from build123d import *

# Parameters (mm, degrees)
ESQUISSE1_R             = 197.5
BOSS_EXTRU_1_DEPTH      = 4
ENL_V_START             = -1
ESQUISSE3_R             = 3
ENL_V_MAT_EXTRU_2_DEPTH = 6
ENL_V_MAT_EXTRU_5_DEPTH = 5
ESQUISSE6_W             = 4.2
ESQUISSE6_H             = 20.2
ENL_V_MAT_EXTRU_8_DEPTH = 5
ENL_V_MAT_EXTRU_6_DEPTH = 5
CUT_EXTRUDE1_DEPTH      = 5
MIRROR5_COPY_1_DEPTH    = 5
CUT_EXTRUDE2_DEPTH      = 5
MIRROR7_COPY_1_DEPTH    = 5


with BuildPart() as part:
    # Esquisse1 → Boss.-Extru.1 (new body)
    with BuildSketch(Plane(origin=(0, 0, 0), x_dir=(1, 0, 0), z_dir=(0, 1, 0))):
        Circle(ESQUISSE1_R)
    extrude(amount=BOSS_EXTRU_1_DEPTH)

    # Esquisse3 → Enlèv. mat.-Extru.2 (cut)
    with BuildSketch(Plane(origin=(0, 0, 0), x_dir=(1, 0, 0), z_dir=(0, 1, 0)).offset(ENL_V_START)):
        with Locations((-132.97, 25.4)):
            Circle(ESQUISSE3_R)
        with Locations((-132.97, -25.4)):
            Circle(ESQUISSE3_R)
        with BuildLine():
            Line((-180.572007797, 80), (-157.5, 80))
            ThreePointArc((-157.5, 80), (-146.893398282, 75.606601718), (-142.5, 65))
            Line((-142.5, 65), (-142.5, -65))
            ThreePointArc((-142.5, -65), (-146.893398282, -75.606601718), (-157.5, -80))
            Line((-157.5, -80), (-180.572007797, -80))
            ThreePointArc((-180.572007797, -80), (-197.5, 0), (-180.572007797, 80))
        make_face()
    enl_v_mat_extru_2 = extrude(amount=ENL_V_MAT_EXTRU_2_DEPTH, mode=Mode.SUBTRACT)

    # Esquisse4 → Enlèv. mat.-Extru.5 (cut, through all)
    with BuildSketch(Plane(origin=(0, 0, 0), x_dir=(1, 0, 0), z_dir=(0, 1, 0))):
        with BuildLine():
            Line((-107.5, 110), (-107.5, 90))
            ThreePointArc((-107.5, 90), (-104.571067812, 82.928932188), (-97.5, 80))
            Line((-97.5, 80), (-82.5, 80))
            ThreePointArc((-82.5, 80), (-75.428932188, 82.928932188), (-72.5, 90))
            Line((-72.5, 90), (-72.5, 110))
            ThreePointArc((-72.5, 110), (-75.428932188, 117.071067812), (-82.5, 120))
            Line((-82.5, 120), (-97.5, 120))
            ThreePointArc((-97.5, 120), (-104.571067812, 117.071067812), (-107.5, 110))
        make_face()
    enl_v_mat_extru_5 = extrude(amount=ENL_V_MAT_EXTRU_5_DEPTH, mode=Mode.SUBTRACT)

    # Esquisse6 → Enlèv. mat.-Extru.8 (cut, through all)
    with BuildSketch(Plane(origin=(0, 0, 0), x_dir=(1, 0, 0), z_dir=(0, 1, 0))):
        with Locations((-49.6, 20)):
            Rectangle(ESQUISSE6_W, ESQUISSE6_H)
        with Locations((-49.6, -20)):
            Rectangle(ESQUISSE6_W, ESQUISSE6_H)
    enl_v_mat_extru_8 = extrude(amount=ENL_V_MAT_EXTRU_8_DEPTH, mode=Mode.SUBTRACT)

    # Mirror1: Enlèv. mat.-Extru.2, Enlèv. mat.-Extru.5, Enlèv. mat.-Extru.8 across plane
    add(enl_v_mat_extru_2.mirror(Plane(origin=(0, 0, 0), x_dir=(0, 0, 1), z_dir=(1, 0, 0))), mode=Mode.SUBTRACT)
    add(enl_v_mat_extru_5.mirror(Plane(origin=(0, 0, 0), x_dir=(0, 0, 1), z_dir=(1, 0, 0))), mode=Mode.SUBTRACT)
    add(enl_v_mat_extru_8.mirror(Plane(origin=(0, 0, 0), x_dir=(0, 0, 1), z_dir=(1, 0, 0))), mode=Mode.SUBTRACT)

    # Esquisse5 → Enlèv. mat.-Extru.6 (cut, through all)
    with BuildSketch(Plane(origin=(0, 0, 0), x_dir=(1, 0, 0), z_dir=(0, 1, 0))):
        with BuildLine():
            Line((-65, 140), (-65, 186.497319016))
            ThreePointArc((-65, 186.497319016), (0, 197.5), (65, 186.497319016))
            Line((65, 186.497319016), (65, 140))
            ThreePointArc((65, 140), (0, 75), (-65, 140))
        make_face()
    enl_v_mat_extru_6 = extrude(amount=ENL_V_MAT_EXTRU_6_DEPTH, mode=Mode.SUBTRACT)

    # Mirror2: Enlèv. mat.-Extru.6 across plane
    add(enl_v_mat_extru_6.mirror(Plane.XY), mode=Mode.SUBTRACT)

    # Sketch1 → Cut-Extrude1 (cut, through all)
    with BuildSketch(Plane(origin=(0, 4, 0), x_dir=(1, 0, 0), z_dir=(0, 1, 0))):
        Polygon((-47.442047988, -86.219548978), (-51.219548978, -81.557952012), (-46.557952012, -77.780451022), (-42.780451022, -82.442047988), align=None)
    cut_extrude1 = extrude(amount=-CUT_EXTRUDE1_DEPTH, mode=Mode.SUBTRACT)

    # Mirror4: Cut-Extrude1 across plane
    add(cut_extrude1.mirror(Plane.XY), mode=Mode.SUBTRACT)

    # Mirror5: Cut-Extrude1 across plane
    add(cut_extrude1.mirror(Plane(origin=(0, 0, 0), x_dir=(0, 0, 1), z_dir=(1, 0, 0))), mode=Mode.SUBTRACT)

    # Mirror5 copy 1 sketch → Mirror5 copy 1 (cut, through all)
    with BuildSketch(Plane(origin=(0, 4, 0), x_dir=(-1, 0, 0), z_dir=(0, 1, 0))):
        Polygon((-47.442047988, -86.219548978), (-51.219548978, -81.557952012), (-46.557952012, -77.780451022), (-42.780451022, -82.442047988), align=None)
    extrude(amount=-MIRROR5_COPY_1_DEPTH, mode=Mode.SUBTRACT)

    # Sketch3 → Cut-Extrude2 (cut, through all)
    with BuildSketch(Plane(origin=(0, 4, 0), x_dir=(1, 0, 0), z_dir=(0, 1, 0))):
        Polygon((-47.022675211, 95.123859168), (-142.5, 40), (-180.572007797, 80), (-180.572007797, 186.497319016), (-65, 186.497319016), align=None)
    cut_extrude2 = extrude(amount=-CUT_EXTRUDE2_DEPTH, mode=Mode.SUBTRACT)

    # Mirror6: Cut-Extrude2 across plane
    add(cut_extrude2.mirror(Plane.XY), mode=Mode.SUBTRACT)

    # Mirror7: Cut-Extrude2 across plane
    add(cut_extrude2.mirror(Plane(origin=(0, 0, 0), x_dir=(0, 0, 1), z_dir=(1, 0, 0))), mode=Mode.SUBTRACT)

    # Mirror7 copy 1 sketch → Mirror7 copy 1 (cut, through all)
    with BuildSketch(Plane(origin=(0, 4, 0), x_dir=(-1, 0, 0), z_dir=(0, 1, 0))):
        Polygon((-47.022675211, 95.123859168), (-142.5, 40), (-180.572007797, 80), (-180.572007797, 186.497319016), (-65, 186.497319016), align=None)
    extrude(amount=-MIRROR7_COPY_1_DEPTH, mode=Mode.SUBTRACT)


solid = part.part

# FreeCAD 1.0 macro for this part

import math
import FreeCAD as App
import Part
import Sketcher

V = App.Vector
Q = App.Units.Quantity

doc = App.newDocument("Part")
body = doc.addObject("PartDesign::Body", "Body")

# Sketch on XZ plane
sketch1 = body.newObject("Sketcher::SketchObject", "Sketch")
sketch1.AttachmentSupport = (doc.getObject("XZ_Plane"), [""])
sketch1.MapMode = "FlatFace"
sketch1.addGeometry(Part.Circle(V(0, 0, 0), V(0, 0, 1), 197.5), False)
sketch1.addConstraint([
    Sketcher.Constraint("Coincident", 0, 3, -1, 1),
    Sketcher.Constraint("Diameter", 0, 395.0),
])
pad1 = body.newObject("PartDesign::Pad", "Pad")
pad1.Profile = sketch1
pad1.Length = 4
pad1.Reversed = True

# Sketch on XZ plane
sketch2 = body.newObject("Sketcher::SketchObject", "Sketch001")
sketch2.AttachmentSupport = (doc.getObject("XZ_Plane"), [""])
sketch2.MapMode = "FlatFace"
sketch2.AttachmentOffset = App.Placement(V(0, 0, 1), App.Rotation())
sketch2.addGeometry([
    Part.Circle(V(-132.97, -25.4, 0), V(0, 0, 1), 3),  # 0
    Part.Circle(V(-132.97, 25.4, 0), V(0, 0, 1), 3),  # 1
    Part.LineSegment(V(-157.5, -80, 0), V(-180.572008, -80, 0)),  # 2
    Part.ArcOfCircle(Part.Circle(V(0, 0, 0), V(0, 0, 1), 197.5), math.radians(156.104907), math.radians(203.895093)),  # 3
    Part.LineSegment(V(-180.572008, 80, 0), V(-157.5, 80, 0)),  # 4
    Part.ArcOfCircle(Part.Circle(V(-157.5, 65, 0), V(0, 0, 1), 15), math.radians(0), math.radians(90)),  # 5
    Part.LineSegment(V(-142.5, 65, 0), V(-142.5, -65, 0)),  # 6
    Part.ArcOfCircle(Part.Circle(V(-157.5, -65, 0), V(0, 0, 1), 15), math.radians(-90), math.radians(0)),  # 7
], False)
sketch2.addConstraint([
    Sketcher.Constraint("Coincident", 2, 2, 3, 2),
    Sketcher.Constraint("Coincident", 3, 1, 4, 1),
    Sketcher.Constraint("Tangent", 4, 2, 5, 2),
    Sketcher.Constraint("Tangent", 5, 1, 6, 1),
    Sketcher.Constraint("Tangent", 6, 2, 7, 2),
    Sketcher.Constraint("Tangent", 7, 1, 2, 1),
    Sketcher.Constraint("Horizontal", 2),
    Sketcher.Constraint("Horizontal", 4),
    Sketcher.Constraint("Vertical", 6),
    Sketcher.Constraint("Coincident", 3, 3, -1, 1),
    Sketcher.Constraint("Equal", 0, 1),
    Sketcher.Constraint("Equal", 5, 7),
    Sketcher.Constraint("Symmetric", 0, 3, 1, 3, -1),
    Sketcher.Constraint("Vertical", 2, 2, 3, 1),
    Sketcher.Constraint("Diameter", 0, 6.0),
    Sketcher.Constraint("Radius", 5, 15.0),
    Sketcher.Constraint("Radius", 3, 197.5),
    Sketcher.Constraint("DistanceY", 6, 2, 6, 1, 130.0),
    Sketcher.Constraint("DistanceY", 0, 3, -1, 1, 25.4),
    Sketcher.Constraint("DistanceX", 5, 3, -1, 1, 157.5),
    Sketcher.Constraint("DistanceX", 0, 3, -1, 1, 132.97),
])
pocket1 = body.newObject("PartDesign::Pocket", "Pocket")
pocket1.Profile = sketch2
pocket1.Length = 6

# Sketch on XZ plane
sketch3 = body.newObject("Sketcher::SketchObject", "Sketch002")
sketch3.AttachmentSupport = (doc.getObject("XZ_Plane"), [""])
sketch3.MapMode = "FlatFace"
sketch3.addGeometry([
    Part.LineSegment(V(-107.5, -110, 0), V(-107.5, -90, 0)),  # 0
    Part.ArcOfCircle(Part.Circle(V(-97.5, -90, 0), V(0, 0, 1), 10), math.radians(90), math.radians(180)),  # 1
    Part.LineSegment(V(-97.5, -80, 0), V(-82.5, -80, 0)),  # 2
    Part.ArcOfCircle(Part.Circle(V(-82.5, -90, 0), V(0, 0, 1), 10), math.radians(0), math.radians(90)),  # 3
    Part.LineSegment(V(-72.5, -90, 0), V(-72.5, -110, 0)),  # 4
    Part.ArcOfCircle(Part.Circle(V(-82.5, -110, 0), V(0, 0, 1), 10), math.radians(-90), math.radians(0)),  # 5
    Part.LineSegment(V(-82.5, -120, 0), V(-97.5, -120, 0)),  # 6
    Part.ArcOfCircle(Part.Circle(V(-97.5, -110, 0), V(0, 0, 1), 10), math.radians(180), math.radians(270)),  # 7
], False)
sketch3.addConstraint([
    Sketcher.Constraint("Tangent", 0, 2, 1, 2),
    Sketcher.Constraint("Tangent", 1, 1, 2, 1),
    Sketcher.Constraint("Tangent", 2, 2, 3, 2),
    Sketcher.Constraint("Tangent", 3, 1, 4, 1),
    Sketcher.Constraint("Tangent", 4, 2, 5, 2),
    Sketcher.Constraint("Tangent", 5, 1, 6, 1),
    Sketcher.Constraint("Tangent", 6, 2, 7, 2),
    Sketcher.Constraint("Tangent", 7, 1, 0, 1),
    Sketcher.Constraint("Vertical", 0),
    Sketcher.Constraint("Horizontal", 2),
    Sketcher.Constraint("Vertical", 4),
    Sketcher.Constraint("Horizontal", 6),
    Sketcher.Constraint("Equal", 1, 3),
    Sketcher.Constraint("Equal", 3, 5),
    Sketcher.Constraint("Equal", 5, 7),
    Sketcher.Constraint("Radius", 1, 10.0),
    Sketcher.Constraint("DistanceX", 2, 1, 2, 2, 15.0),
    Sketcher.Constraint("DistanceY", 0, 1, 0, 2, 20.0),
    Sketcher.Constraint("DistanceY", 1, 3, -1, 1, 90.0),
    Sketcher.Constraint("DistanceX", 1, 3, -1, 1, 97.5),
])
pocket2 = body.newObject("PartDesign::Pocket", "Pocket001")
pocket2.Profile = sketch3
pocket2.Type = "ThroughAll"

# Sketch on XZ plane
sketch4 = body.newObject("Sketcher::SketchObject", "Sketch003")
sketch4.AttachmentSupport = (doc.getObject("XZ_Plane"), [""])
sketch4.MapMode = "FlatFace"
sketch4.addGeometry([
    Part.LineSegment(V(-51.7, -30.1, 0), V(-51.7, -9.9, 0)),  # 0
    Part.LineSegment(V(-51.7, -9.9, 0), V(-47.5, -9.9, 0)),  # 1
    Part.LineSegment(V(-47.5, -9.9, 0), V(-47.5, -30.1, 0)),  # 2
    Part.LineSegment(V(-47.5, -30.1, 0), V(-51.7, -30.1, 0)),  # 3
    Part.LineSegment(V(-51.7, 9.9, 0), V(-51.7, 30.1, 0)),  # 4
    Part.LineSegment(V(-51.7, 30.1, 0), V(-47.5, 30.1, 0)),  # 5
    Part.LineSegment(V(-47.5, 30.1, 0), V(-47.5, 9.9, 0)),  # 6
    Part.LineSegment(V(-47.5, 9.9, 0), V(-51.7, 9.9, 0)),  # 7
], False)
sketch4.addConstraint([
    Sketcher.Constraint("Coincident", 0, 2, 1, 1),
    Sketcher.Constraint("Coincident", 1, 2, 2, 1),
    Sketcher.Constraint("Coincident", 2, 2, 3, 1),
    Sketcher.Constraint("Coincident", 3, 2, 0, 1),
    Sketcher.Constraint("Coincident", 4, 2, 5, 1),
    Sketcher.Constraint("Coincident", 5, 2, 6, 1),
    Sketcher.Constraint("Coincident", 6, 2, 7, 1),
    Sketcher.Constraint("Coincident", 7, 2, 4, 1),
    Sketcher.Constraint("Vertical", 0),
    Sketcher.Constraint("Horizontal", 1),
    Sketcher.Constraint("Vertical", 2),
    Sketcher.Constraint("Horizontal", 3),
    Sketcher.Constraint("Vertical", 4),
    Sketcher.Constraint("Horizontal", 5),
    Sketcher.Constraint("Vertical", 6),
    Sketcher.Constraint("Horizontal", 7),
    Sketcher.Constraint("Symmetric", 3, 2, 4, 2, -1),
    Sketcher.Constraint("Symmetric", 1, 2, 6, 2, -1),
    Sketcher.Constraint("DistanceX", 1, 1, 1, 2, 4.2),
    Sketcher.Constraint("DistanceY", 0, 1, 0, 2, 20.2),
    Sketcher.Constraint("DistanceY", 0, 2, 4, 2, 40.0),
    Sketcher.Constraint("DistanceX", 0, 2, -1, 1, 51.7),
])
pocket3 = body.newObject("PartDesign::Pocket", "Pocket002")
pocket3.Profile = sketch4
pocket3.Type = "ThroughAll"
doc.recompute()

mirrored = body.newObject("PartDesign::Mirrored", "Mirrored")
mirrored.Originals = [pocket1, pocket2, pocket3]
mirrored.MirrorPlane = (doc.getObject("YZ_Plane"), [""])
body.Tip = mirrored

# Sketch on XZ plane
sketch5 = body.newObject("Sketcher::SketchObject", "Sketch004")
sketch5.AttachmentSupport = (doc.getObject("XZ_Plane"), [""])
sketch5.MapMode = "FlatFace"
sketch5.addGeometry([
    Part.LineSegment(V(-65, -186.497319, 0), V(-65, -140, 0)),
    Part.ArcOfCircle(Part.Circle(V(0, -140, 0), V(0, 0, 1), 65), math.radians(0), math.radians(180)),
    Part.LineSegment(V(65, -140, 0), V(65, -186.497319, 0)),
    Part.ArcOfCircle(Part.Circle(V(0, 0, 0), V(0, 0, 1), 197.5), math.radians(-109.215003), math.radians(-70.784997)),
], False)
sketch5.addConstraint([
    Sketcher.Constraint("Tangent", 0, 2, 1, 2),
    Sketcher.Constraint("Tangent", 1, 1, 2, 1),
    Sketcher.Constraint("Coincident", 2, 2, 3, 2),
    Sketcher.Constraint("Coincident", 3, 1, 0, 1),
    Sketcher.Constraint("Vertical", 0),
    Sketcher.Constraint("Vertical", 2),
    Sketcher.Constraint("Coincident", 3, 3, -1, 1),
    Sketcher.Constraint("PointOnObject", 1, 3, -2),
    Sketcher.Constraint("Radius", 1, 65.0),
    Sketcher.Constraint("Radius", 3, 197.5),
    Sketcher.Constraint("DistanceY", 1, 3, -1, 1, 140.0),
])
pocket4 = body.newObject("PartDesign::Pocket", "Pocket003")
pocket4.Profile = sketch5
pocket4.Type = "ThroughAll"
doc.recompute()

mirrored2 = body.newObject("PartDesign::Mirrored", "Mirrored001")
mirrored2.Originals = [pocket4]
mirrored2.MirrorPlane = (doc.getObject("XY_Plane"), [""])
body.Tip = mirrored2

# Sketch on XZ plane
sketch6 = body.newObject("Sketcher::SketchObject", "Sketch005")
sketch6.AttachmentSupport = (doc.getObject("XZ_Plane"), [""])
sketch6.MapMode = "FlatFace"
sketch6.AttachmentOffset = App.Placement(V(0, 0, -4), App.Rotation())
sketch6.addGeometry([
    Part.LineSegment(V(-51.219549, 81.557952, 0), V(-47.442048, 86.219549, 0)),
    Part.LineSegment(V(-47.442048, 86.219549, 0), V(-42.780451, 82.442048, 0)),
    Part.LineSegment(V(-42.780451, 82.442048, 0), V(-46.557952, 77.780451, 0)),
    Part.LineSegment(V(-46.557952, 77.780451, 0), V(-51.219549, 81.557952, 0)),
], False)
sketch6.addConstraint([
    Sketcher.Constraint("Coincident", 0, 2, 1, 1),
    Sketcher.Constraint("Coincident", 1, 2, 2, 1),
    Sketcher.Constraint("Coincident", 2, 2, 3, 1),
    Sketcher.Constraint("Coincident", 3, 2, 0, 1),
    Sketcher.Constraint("Perpendicular", 0, 1),
    Sketcher.Constraint("Perpendicular", 1, 2),
    Sketcher.Constraint("Perpendicular", 2, 3),
    Sketcher.Constraint("Equal", 0, 1),
    Sketcher.Constraint("Distance", 0, 6.0),
    Sketcher.Constraint("DistanceY", 1, 2, 0, 2, 3.777501),
    Sketcher.Constraint("DistanceY", -1, 1, 0, 2, 86.219549),
    Sketcher.Constraint("DistanceX", 1, 2, -1, 1, 42.780451),
])
pocket5 = body.newObject("PartDesign::Pocket", "Pocket004")
pocket5.Profile = sketch6
pocket5.Type = "ThroughAll"
pocket5.Reversed = True
doc.recompute()

mirrored3 = body.newObject("PartDesign::Mirrored", "Mirrored002")
mirrored3.Originals = [pocket5]
mirrored3.MirrorPlane = (doc.getObject("XY_Plane"), [""])
body.Tip = mirrored3
doc.recompute()

mirrored4 = body.newObject("PartDesign::Mirrored", "Mirrored003")
mirrored4.Originals = [pocket5]
mirrored4.MirrorPlane = (doc.getObject("YZ_Plane"), [""])
body.Tip = mirrored4

# Sketch on XZ plane
sketch7 = body.newObject("Sketcher::SketchObject", "Sketch006")
sketch7.AttachmentSupport = (doc.getObject("XZ_Plane"), [""])
sketch7.MapMode = "FlatFace"
sketch7.AttachmentOffset = App.Placement(V(0, 0, -4), App.Rotation())
sketch7.addGeometry([
    Part.LineSegment(V(51.219549, -81.557952, 0), V(47.442048, -86.219549, 0)),
    Part.LineSegment(V(47.442048, -86.219549, 0), V(42.780451, -82.442048, 0)),
    Part.LineSegment(V(42.780451, -82.442048, 0), V(46.557952, -77.780451, 0)),
    Part.LineSegment(V(46.557952, -77.780451, 0), V(51.219549, -81.557952, 0)),
], False)
sketch7.addConstraint([
    Sketcher.Constraint("Coincident", 0, 2, 1, 1),
    Sketcher.Constraint("Coincident", 1, 2, 2, 1),
    Sketcher.Constraint("Coincident", 2, 2, 3, 1),
    Sketcher.Constraint("Coincident", 3, 2, 0, 1),
    Sketcher.Constraint("Perpendicular", 0, 1),
    Sketcher.Constraint("Perpendicular", 1, 2),
    Sketcher.Constraint("Perpendicular", 2, 3),
    Sketcher.Constraint("Equal", 0, 1),
    Sketcher.Constraint("Distance", 0, 6.0),
    Sketcher.Constraint("DistanceY", 0, 2, 1, 2, 3.777501),
    Sketcher.Constraint("DistanceY", 0, 2, -1, 1, 86.219549),
    Sketcher.Constraint("DistanceX", -1, 1, 1, 2, 42.780451),
])
pocket6 = body.newObject("PartDesign::Pocket", "Pocket005")
pocket6.Profile = sketch7
pocket6.Type = "ThroughAll"
pocket6.Reversed = True

# Sketch on XZ plane
sketch8 = body.newObject("Sketcher::SketchObject", "Sketch007")
sketch8.AttachmentSupport = (doc.getObject("XZ_Plane"), [""])
sketch8.MapMode = "FlatFace"
sketch8.AttachmentOffset = App.Placement(V(0, 0, -4), App.Rotation())
sketch8.addGeometry([
    Part.LineSegment(V(-142.5, -40, 0), V(-47.022675, -95.123859, 0)),  # 0
    Part.LineSegment(V(-47.022675, -95.123859, 0), V(-65, -186.497319, 0)),  # 1
    Part.LineSegment(V(-65, -186.497319, 0), V(-180.572008, -186.497319, 0)),  # 2
    Part.LineSegment(V(-180.572008, -186.497319, 0), V(-180.572008, -80, 0)),  # 3
    Part.LineSegment(V(-180.572008, -80, 0), V(-142.5, -40, 0)),  # 4
], False)
sketch8.addConstraint([
    Sketcher.Constraint("Coincident", 0, 2, 1, 1),
    Sketcher.Constraint("Coincident", 1, 2, 2, 1),
    Sketcher.Constraint("Coincident", 2, 2, 3, 1),
    Sketcher.Constraint("Coincident", 3, 2, 4, 1),
    Sketcher.Constraint("Coincident", 4, 2, 0, 1),
    Sketcher.Constraint("Horizontal", 2),
    Sketcher.Constraint("Vertical", 3),
    Sketcher.Constraint("Angle", 0, Q("-30 deg")),
    Sketcher.Constraint("DistanceX", 1, 2, -1, 1, 65.0),
    Sketcher.Constraint("DistanceY", 3, 2, -1, 1, 80.0),
    Sketcher.Constraint("DistanceY", 4, 2, -1, 1, 40.0),
    Sketcher.Constraint("DistanceX", 4, 2, -1, 1, 142.5),
    Sketcher.Constraint("DistanceY", 3, 1, 3, 2, 106.497319),
    Sketcher.Constraint("Distance", 0, 110.247718),
    Sketcher.Constraint("DistanceX", 2, 2, 2, 1, 115.572008),
])
pocket7 = body.newObject("PartDesign::Pocket", "Pocket006")
pocket7.Profile = sketch8
pocket7.Type = "ThroughAll"
pocket7.Reversed = True
doc.recompute()

mirrored5 = body.newObject("PartDesign::Mirrored", "Mirrored004")
mirrored5.Originals = [pocket7]
mirrored5.MirrorPlane = (doc.getObject("XY_Plane"), [""])
body.Tip = mirrored5
doc.recompute()

mirrored6 = body.newObject("PartDesign::Mirrored", "Mirrored005")
mirrored6.Originals = [pocket7]
mirrored6.MirrorPlane = (doc.getObject("YZ_Plane"), [""])
body.Tip = mirrored6

# Sketch on XZ plane
sketch9 = body.newObject("Sketcher::SketchObject", "Sketch008")
sketch9.AttachmentSupport = (doc.getObject("XZ_Plane"), [""])
sketch9.MapMode = "FlatFace"
sketch9.AttachmentOffset = App.Placement(V(0, 0, -4), App.Rotation())
sketch9.addGeometry([
    Part.LineSegment(V(142.5, 40, 0), V(47.022675, 95.123859, 0)),  # 0
    Part.LineSegment(V(47.022675, 95.123859, 0), V(65, 186.497319, 0)),  # 1
    Part.LineSegment(V(65, 186.497319, 0), V(180.572008, 186.497319, 0)),  # 2
    Part.LineSegment(V(180.572008, 186.497319, 0), V(180.572008, 80, 0)),  # 3
    Part.LineSegment(V(180.572008, 80, 0), V(142.5, 40, 0)),  # 4
], False)
sketch9.addConstraint([
    Sketcher.Constraint("Coincident", 0, 2, 1, 1),
    Sketcher.Constraint("Coincident", 1, 2, 2, 1),
    Sketcher.Constraint("Coincident", 2, 2, 3, 1),
    Sketcher.Constraint("Coincident", 3, 2, 4, 1),
    Sketcher.Constraint("Coincident", 4, 2, 0, 1),
    Sketcher.Constraint("Horizontal", 2),
    Sketcher.Constraint("Vertical", 3),
    Sketcher.Constraint("Angle", 0, Q("150 deg")),
    Sketcher.Constraint("DistanceX", -1, 1, 1, 2, 65.0),
    Sketcher.Constraint("DistanceY", -1, 1, 3, 2, 80.0),
    Sketcher.Constraint("DistanceY", -1, 1, 4, 2, 40.0),
    Sketcher.Constraint("DistanceX", -1, 1, 4, 2, 142.5),
    Sketcher.Constraint("DistanceY", 3, 2, 3, 1, 106.497319),
    Sketcher.Constraint("Distance", 0, 110.247718),
    Sketcher.Constraint("DistanceX", 2, 1, 2, 2, 115.572008),
])
pocket8 = body.newObject("PartDesign::Pocket", "Pocket007")
pocket8.Profile = sketch9
pocket8.Type = "ThroughAll"
pocket8.Reversed = True

doc.recompute()
